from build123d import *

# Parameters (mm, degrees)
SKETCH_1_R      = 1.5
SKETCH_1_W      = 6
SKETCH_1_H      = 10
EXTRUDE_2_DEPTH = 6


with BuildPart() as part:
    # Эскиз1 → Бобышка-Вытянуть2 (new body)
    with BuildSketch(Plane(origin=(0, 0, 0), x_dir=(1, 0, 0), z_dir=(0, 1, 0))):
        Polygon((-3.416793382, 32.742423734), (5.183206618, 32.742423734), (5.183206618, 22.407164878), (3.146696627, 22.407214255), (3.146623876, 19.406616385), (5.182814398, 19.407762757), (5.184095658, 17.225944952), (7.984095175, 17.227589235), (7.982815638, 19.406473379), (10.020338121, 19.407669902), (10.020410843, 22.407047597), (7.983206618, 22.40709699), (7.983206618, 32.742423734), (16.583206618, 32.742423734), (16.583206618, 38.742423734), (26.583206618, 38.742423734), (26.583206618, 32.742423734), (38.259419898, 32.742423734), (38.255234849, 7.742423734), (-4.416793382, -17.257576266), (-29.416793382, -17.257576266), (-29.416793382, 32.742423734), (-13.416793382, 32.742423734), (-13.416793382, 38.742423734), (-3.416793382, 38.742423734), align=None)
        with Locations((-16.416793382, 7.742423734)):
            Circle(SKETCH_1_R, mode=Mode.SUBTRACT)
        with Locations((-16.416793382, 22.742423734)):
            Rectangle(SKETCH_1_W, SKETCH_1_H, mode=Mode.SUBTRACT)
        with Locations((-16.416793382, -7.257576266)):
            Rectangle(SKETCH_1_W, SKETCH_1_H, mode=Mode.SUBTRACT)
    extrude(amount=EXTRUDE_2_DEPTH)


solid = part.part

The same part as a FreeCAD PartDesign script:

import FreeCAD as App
import Part
import Sketcher

doc = App.newDocument("Part")
body = doc.addObject("PartDesign::Body", "Body")

sketch1 = doc.addObject("Sketcher::SketchObject", "Sketch")
body.addObject(sketch1)
sketch1.AttachmentSupport = (doc.XZ_Plane, [""])
sketch1.MapMode = "FlatFace"
sketch1.addGeometry([
    Part.LineSegment(App.Vector(5.2, -32.7, 0), App.Vector(-3.4, -32.7, 0)),
    Part.LineSegment(App.Vector(-3.4, -32.7, 0), App.Vector(-3.4, -38.7, 0)),
    Part.LineSegment(App.Vector(-3.4, -38.7, 0), App.Vector(-13.4, -38.7, 0)),
    Part.LineSegment(App.Vector(-13.4, -38.7, 0), App.Vector(-13.4, -32.7, 0)),
    Part.LineSegment(App.Vector(-13.4, -32.7, 0), App.Vector(-29.4, -32.7, 0)),
    Part.LineSegment(App.Vector(-29.4, -32.7, 0), App.Vector(-29.4, 17.3, 0)),
    Part.LineSegment(App.Vector(-29.4, 17.3, 0), App.Vector(-4.4, 17.3, 0)),
    Part.LineSegment(App.Vector(-4.4, 17.3, 0), App.Vector(38.3, -7.7, 0)),
    Part.LineSegment(App.Vector(38.3, -7.7, 0), App.Vector(38.3, -32.7, 0)),
    Part.LineSegment(App.Vector(38.3, -32.7, 0), App.Vector(26.6, -32.7, 0)),
    Part.LineSegment(App.Vector(26.6, -32.7, 0), App.Vector(26.6, -38.7, 0)),
    Part.LineSegment(App.Vector(26.6, -38.7, 0), App.Vector(16.6, -38.7, 0)),
    Part.LineSegment(App.Vector(16.6, -38.7, 0), App.Vector(16.6, -32.7, 0)),
    Part.LineSegment(App.Vector(16.6, -32.7, 0), App.Vector(8, -32.7, 0)),
    Part.LineSegment(App.Vector(8, -32.7, 0), App.Vector(8, -22.4, 0)),
    Part.LineSegment(App.Vector(8, -22.4, 0), App.Vector(10, -22.4, 0)),
    Part.LineSegment(App.Vector(10, -22.4, 0), App.Vector(10, -19.4, 0)),
    Part.LineSegment(App.Vector(10, -19.4, 0), App.Vector(8, -19.4, 0)),
    Part.LineSegment(App.Vector(8, -19.4, 0), App.Vector(8, -17.2, 0)),
    Part.LineSegment(App.Vector(8, -17.2, 0), App.Vector(5.2, -17.2, 0)),
    Part.LineSegment(App.Vector(5.2, -17.2, 0), App.Vector(5.2, -19.4, 0)),
    Part.LineSegment(App.Vector(5.2, -19.4, 0), App.Vector(3.1, -19.4, 0)),
    Part.LineSegment(App.Vector(3.1, -19.4, 0), App.Vector(3.1, -22.4, 0)),
    Part.LineSegment(App.Vector(3.1, -22.4, 0), App.Vector(5.2, -22.4, 0)),
    Part.LineSegment(App.Vector(5.2, -22.4, 0), App.Vector(5.2, -32.7, 0)),
    Part.LineSegment(App.Vector(-19.4, 12.3, 0), App.Vector(-19.4, 2.3, 0)),
    Part.LineSegment(App.Vector(-19.4, 2.3, 0), App.Vector(-13.4, 2.3, 0)),
    Part.LineSegment(App.Vector(-13.4, 2.3, 0), App.Vector(-13.4, 12.3, 0)),
    Part.LineSegment(App.Vector(-13.4, 12.3, 0), App.Vector(-19.4, 12.3, 0)),
    Part.Circle(App.Vector(-16.4, -7.7, 0), App.Vector(0, 0, 1), 1.5),
    Part.LineSegment(App.Vector(-19.4, -17.7, 0), App.Vector(-19.4, -27.7, 0)),
    Part.LineSegment(App.Vector(-19.4, -27.7, 0), App.Vector(-13.4, -27.7, 0)),
    Part.LineSegment(App.Vector(-13.4, -27.7, 0), App.Vector(-13.4, -17.7, 0)),
    Part.LineSegment(App.Vector(-13.4, -17.7, 0), App.Vector(-19.4, -17.7, 0)),
], False)
sketch1.addConstraint([
    Sketcher.Constraint("Coincident", 0, 2, 1, 1),
    Sketcher.Constraint("Coincident", 1, 2, 2, 1),
    Sketcher.Constraint("Coincident", 2, 2, 3, 1),
    Sketcher.Constraint("Coincident", 3, 2, 4, 1),
    Sketcher.Constraint("Coincident", 4, 2, 5, 1),
    Sketcher.Constraint("Coincident", 5, 2, 6, 1),
    Sketcher.Constraint("Coincident", 6, 2, 7, 1),
    Sketcher.Constraint("Coincident", 7, 2, 8, 1),
    Sketcher.Constraint("Coincident", 8, 2, 9, 1),
    Sketcher.Constraint("Coincident", 9, 2, 10, 1),
    Sketcher.Constraint("Coincident", 10, 2, 11, 1),
    Sketcher.Constraint("Coincident", 11, 2, 12, 1),
    Sketcher.Constraint("Coincident", 12, 2, 13, 1),
    Sketcher.Constraint("Coincident", 13, 2, 14, 1),
    Sketcher.Constraint("Coincident", 14, 2, 15, 1),
    Sketcher.Constraint("Coincident", 15, 2, 16, 1),
    Sketcher.Constraint("Coincident", 16, 2, 17, 1),
    Sketcher.Constraint("Coincident", 17, 2, 18, 1),
    Sketcher.Constraint("Coincident", 18, 2, 19, 1),
    Sketcher.Constraint("Coincident", 19, 2, 20, 1),
    Sketcher.Constraint("Coincident", 20, 2, 21, 1),
    Sketcher.Constraint("Coincident", 21, 2, 22, 1),
    Sketcher.Constraint("Coincident", 22, 2, 23, 1),
    Sketcher.Constraint("Coincident", 23, 2, 24, 1),
    Sketcher.Constraint("Coincident", 24, 2, 0, 1),
    Sketcher.Constraint("Coincident", 25, 2, 26, 1),
    Sketcher.Constraint("Coincident", 26, 2, 27, 1),
    Sketcher.Constraint("Coincident", 27, 2, 28, 1),
    Sketcher.Constraint("Coincident", 28, 2, 25, 1),
    Sketcher.Constraint("Coincident", 30, 2, 31, 1),
    Sketcher.Constraint("Coincident", 31, 2, 32, 1),
    Sketcher.Constraint("Coincident", 32, 2, 33, 1),
    Sketcher.Constraint("Coincident", 33, 2, 30, 1),
    Sketcher.Constraint("Horizontal", 0),
    Sketcher.Constraint("Vertical", 1),
    Sketcher.Constraint("Horizontal", 2),
    Sketcher.Constraint("Vertical", 3),
    Sketcher.Constraint("Horizontal", 4),
    Sketcher.Constraint("Vertical", 5),
    Sketcher.Constraint("Horizontal", 6),
    Sketcher.Constraint("Horizontal", 9),
    Sketcher.Constraint("Vertical", 10),
    Sketcher.Constraint("Horizontal", 11),
    Sketcher.Constraint("Vertical", 12),
    Sketcher.Constraint("Horizontal", 13),
    Sketcher.Constraint("Vertical", 14),
    Sketcher.Constraint("Vertical", 24),
    Sketcher.Constraint("Vertical", 25),
    Sketcher.Constraint("Horizontal", 26),
    Sketcher.Constraint("Vertical", 27),
    Sketcher.Constraint("Horizontal", 28),
    Sketcher.Constraint("Vertical", 30),
    Sketcher.Constraint("Horizontal", 31),
    Sketcher.Constraint("Vertical", 32),
    Sketcher.Constraint("Horizontal", 33),
    Sketcher.Constraint("Perpendicular", 15, 16),
    Sketcher.Constraint("Perpendicular", 17, 18),
    Sketcher.Constraint("Perpendicular", 18, 19),
    Sketcher.Constraint("Perpendicular", 19, 20),
    Sketcher.Constraint("Parallel", 16, 22),
    Sketcher.Constraint("Perpendicular", 22, 23),
    Sketcher.Constraint("Horizontal", 0, 2, 3, 2),
    Sketcher.Constraint("Horizontal", 29, 3, 7, 2),
    Sketcher.Constraint("Horizontal", 4, 2, 8, 2),
    Sketcher.Constraint("Horizontal", 2, 2, 10, 2),
    Sketcher.Constraint("Horizontal", 9, 2, 12, 2),
    Sketcher.Constraint("Vertical", 3, 2, 26, 2),
    Sketcher.Constraint("Vertical", 28, 2, 30, 2),
    Sketcher.Constraint("Vertical", 27, 2, 31, 2),
    Sketcher.Constraint("Equal", 2, 11),
    Sketcher.Constraint("Equal", 0, 13),
    Sketcher.Constraint("Equal", 33, 1),
    Sketcher.Constraint("Equal", 11, 25),
    Sketcher.Constraint("Equal", 27, 30),
    Sketcher.Constraint("Diameter", 29, 3.0),
    Sketcher.Constraint("DistanceX", 2, 2, 2, 1, 10.0),
    Sketcher.Constraint("DistanceX", 4, 2, 4, 1, 16.0),
    Sketcher.Constraint("DistanceX", 6, 1, 6, 2, 25.0),
    Sketcher.Constraint("DistanceX", 26, 1, 26, 2, 6.0),
    Sketcher.Constraint("DistanceY", 5, 1, 5, 2, 50.0),
    Sketcher.Constraint("Distance", 8, 25.0),
    Sketcher.Constraint("DistanceX", 0, 2, 0, 1, 8.6),
    Sketcher.Constraint("DistanceX", 29, 3, 0, 2, 13.0),
    Sketcher.Constraint("DistanceX", 0, 2, 9, 2, 30.0),
    Sketcher.Constraint("DistanceY", 29, 3, 25, 2, 10.0),
    Sketcher.Constraint("DistanceY", 3, 2, 30, 2, 5.0),
    Sketcher.Constraint("Distance", 19, 2.8),
    Sketcher.Constraint("DistanceY", 24, 2, 24, 1, 10.335259),
    Sketcher.Constraint("DistanceX", 22, 2, 19, 2, 2.037399),
    Sketcher.Constraint("Distance", 7, 49.456061),
    Sketcher.Constraint("Distance", 20, 2.181818),
    Sketcher.Constraint("Distance", 21, 2.036191),
    Sketcher.Constraint("Distance", 23, 2.03651),
    Sketcher.Constraint("DistanceX", 9, 2, 9, 1, 11.676213),
    Sketcher.Constraint("DistanceY", 14, 1, 14, 2, 10.335327),
    Sketcher.Constraint("DistanceX", -1, 1, 8, 2, 38.25942),
    Sketcher.Constraint("DistanceX", -1, 1, 15, 2, 10.020411),
    Sketcher.Constraint("DistanceX", -1, 1, 16, 2, 10.020338),
    Sketcher.Constraint("DistanceY", 16, 2, -1, 1, 19.40767),
    Sketcher.Constraint("DistanceY", 18, 2, -1, 1, 17.227589),
    Sketcher.Constraint("DistanceY", 13, 2, 17, 2, 13.33595),
    Sketcher.Constraint("DistanceY", 21, 2, 19, 2, 2.180671),
])
pad1 = doc.addObject("PartDesign::Pad", "Pad")
body.addObject(pad1)
pad1.Profile = sketch1
pad1.Length = 6
pad1.Reversed = True

doc.recompute()
